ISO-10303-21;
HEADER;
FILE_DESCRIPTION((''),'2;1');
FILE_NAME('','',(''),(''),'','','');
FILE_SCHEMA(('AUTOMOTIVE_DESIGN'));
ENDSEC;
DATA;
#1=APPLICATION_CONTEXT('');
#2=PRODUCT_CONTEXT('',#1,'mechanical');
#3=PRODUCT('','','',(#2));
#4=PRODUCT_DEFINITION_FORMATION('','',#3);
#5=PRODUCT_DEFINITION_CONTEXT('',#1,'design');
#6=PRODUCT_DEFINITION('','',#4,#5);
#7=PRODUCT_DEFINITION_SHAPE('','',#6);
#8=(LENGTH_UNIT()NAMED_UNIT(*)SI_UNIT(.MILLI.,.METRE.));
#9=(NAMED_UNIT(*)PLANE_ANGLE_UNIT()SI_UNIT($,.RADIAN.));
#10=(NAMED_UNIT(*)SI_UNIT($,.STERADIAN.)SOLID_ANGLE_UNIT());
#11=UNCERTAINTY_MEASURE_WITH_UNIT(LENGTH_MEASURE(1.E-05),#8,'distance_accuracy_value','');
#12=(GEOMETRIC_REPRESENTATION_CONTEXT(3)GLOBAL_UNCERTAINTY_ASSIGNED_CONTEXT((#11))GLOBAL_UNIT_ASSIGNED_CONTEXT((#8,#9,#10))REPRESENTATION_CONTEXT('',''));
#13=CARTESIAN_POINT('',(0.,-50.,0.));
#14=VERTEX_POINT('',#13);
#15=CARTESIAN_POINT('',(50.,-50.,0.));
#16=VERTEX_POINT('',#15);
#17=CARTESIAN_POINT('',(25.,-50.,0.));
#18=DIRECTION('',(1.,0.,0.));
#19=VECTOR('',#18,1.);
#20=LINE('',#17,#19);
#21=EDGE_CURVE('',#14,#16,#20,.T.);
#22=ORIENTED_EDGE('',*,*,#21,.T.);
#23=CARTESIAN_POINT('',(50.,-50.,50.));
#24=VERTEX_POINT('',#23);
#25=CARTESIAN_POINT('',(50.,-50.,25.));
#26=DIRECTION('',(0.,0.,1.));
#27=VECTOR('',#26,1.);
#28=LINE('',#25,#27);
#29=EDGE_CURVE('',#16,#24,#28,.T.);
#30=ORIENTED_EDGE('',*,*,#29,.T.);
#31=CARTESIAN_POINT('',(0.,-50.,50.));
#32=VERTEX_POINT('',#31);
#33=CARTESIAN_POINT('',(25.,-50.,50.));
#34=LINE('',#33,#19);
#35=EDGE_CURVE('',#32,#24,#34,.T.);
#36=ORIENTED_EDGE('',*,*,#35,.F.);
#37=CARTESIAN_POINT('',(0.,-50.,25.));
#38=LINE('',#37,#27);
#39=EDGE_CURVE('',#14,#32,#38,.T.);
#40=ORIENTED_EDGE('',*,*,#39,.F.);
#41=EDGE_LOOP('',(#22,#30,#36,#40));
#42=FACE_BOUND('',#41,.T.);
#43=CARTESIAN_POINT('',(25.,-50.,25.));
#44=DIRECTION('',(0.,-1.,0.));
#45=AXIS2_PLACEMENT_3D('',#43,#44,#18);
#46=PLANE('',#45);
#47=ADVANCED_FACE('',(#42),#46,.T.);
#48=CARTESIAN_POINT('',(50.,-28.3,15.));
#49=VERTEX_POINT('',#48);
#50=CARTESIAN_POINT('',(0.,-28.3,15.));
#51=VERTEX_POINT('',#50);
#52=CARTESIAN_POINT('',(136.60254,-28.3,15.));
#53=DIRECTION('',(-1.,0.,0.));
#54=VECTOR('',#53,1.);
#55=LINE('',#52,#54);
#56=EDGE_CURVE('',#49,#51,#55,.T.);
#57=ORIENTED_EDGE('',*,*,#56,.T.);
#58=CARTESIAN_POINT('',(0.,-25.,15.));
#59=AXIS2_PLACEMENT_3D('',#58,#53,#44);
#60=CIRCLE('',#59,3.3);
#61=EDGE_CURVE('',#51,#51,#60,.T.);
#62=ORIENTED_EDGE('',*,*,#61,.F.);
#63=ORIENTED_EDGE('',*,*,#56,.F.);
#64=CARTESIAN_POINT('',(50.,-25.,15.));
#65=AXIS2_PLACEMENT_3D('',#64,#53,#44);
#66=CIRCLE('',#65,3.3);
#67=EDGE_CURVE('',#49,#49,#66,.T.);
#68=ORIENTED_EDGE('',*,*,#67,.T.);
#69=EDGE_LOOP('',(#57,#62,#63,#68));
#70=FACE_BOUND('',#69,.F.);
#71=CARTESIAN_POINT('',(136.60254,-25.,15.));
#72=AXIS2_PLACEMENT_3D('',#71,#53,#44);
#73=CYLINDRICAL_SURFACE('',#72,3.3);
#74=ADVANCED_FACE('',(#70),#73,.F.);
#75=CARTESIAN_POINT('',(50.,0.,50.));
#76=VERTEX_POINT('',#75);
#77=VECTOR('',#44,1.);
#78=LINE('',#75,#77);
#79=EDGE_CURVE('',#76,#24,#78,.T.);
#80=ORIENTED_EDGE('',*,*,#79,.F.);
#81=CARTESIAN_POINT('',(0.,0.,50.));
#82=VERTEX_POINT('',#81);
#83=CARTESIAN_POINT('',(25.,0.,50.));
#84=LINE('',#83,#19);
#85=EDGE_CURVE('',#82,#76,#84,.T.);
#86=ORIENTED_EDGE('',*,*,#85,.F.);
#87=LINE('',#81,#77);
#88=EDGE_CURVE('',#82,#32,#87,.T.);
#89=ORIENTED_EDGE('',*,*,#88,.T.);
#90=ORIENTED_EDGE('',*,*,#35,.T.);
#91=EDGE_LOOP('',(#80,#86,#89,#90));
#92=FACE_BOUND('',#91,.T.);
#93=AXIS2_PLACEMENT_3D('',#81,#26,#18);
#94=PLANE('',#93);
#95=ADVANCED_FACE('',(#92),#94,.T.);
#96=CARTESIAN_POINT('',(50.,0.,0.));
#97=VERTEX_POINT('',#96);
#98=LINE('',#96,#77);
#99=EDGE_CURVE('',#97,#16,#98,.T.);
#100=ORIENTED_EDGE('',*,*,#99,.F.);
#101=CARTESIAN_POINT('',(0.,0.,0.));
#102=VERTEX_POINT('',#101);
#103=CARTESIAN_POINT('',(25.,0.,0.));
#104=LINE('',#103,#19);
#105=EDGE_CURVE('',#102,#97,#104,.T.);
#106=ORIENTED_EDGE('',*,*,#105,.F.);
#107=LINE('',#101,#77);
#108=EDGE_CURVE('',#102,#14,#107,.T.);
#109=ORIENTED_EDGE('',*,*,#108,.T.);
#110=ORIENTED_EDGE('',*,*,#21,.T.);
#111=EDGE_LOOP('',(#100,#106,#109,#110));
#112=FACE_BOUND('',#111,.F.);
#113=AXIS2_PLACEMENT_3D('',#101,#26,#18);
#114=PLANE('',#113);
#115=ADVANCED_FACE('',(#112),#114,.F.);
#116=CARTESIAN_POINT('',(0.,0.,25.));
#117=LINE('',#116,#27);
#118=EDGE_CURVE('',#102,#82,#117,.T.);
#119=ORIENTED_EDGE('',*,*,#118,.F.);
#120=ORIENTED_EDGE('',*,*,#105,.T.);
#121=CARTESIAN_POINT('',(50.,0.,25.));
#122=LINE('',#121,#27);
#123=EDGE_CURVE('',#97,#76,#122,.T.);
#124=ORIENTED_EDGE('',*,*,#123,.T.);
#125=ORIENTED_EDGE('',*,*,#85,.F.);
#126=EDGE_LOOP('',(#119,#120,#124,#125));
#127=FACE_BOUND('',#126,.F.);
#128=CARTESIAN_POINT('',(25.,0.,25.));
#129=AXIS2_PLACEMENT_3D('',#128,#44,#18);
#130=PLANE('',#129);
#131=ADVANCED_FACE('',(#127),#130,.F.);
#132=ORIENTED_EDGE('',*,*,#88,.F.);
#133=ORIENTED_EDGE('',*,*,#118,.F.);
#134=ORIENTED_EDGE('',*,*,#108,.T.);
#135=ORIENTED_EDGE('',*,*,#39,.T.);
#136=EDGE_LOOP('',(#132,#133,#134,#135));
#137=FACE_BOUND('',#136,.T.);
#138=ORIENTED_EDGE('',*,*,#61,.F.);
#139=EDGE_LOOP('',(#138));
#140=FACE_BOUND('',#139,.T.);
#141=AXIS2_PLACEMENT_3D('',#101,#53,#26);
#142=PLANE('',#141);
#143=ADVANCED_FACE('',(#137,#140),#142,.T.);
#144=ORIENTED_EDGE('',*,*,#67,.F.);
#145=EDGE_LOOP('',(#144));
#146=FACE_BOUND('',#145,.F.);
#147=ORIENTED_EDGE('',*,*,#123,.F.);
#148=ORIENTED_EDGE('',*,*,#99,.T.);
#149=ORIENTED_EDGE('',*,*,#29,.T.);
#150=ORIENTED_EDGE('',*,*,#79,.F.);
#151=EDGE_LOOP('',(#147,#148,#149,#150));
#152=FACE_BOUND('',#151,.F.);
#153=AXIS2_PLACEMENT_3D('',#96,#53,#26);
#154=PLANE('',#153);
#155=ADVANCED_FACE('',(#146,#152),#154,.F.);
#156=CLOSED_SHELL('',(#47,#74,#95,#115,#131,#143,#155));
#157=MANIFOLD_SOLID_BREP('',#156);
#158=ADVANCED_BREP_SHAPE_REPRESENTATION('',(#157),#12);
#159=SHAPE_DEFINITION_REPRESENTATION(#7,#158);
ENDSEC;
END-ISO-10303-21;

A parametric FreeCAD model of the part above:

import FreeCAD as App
import Part
import Sketcher
from FreeCAD import Vector


def add_polygon(sketch, points):
    """Adds a closed chain of lines whose ends are joined by coincident constraints."""
    first, n = sketch.GeometryCount, len(points)
    for a, b in zip(points, points[1:] + points[:1]):
        sketch.addGeometry(Part.LineSegment(App.Vector(*a, 0), App.Vector(*b, 0)), False)
    for i in range(n):
        sketch.addConstraint(Sketcher.Constraint("Coincident", first + i, 2, first + (i + 1) % n, 1))

doc = App.newDocument("Part")
body = doc.addObject("PartDesign::Body", "Body")

sketch1 = body.newObject("Sketcher::SketchObject", "Sketch")
sketch1.AttachmentSupport = (doc.getObject("XZ_Plane"), [""])
sketch1.MapMode = "FlatFace"
add_polygon(sketch1, [(0, 50), (0, 0), (50, 0), (50, 50)])
sketch1.addConstraint([
    Sketcher.Constraint("Vertical", 0),
    Sketcher.Constraint("Horizontal", 1),
    Sketcher.Constraint("Vertical", 2),
    Sketcher.Constraint("Horizontal", 3),
    Sketcher.Constraint("Coincident", 0, 2, -1, 1),
    Sketcher.Constraint("Equal", 3, 0),
    Sketcher.Constraint("DistanceX", 1, 1, 1, 2, 50.0),
])
pad1 = body.newObject("PartDesign::Pad", "Pad")
pad1.Profile = sketch1
pad1.Length = 50

sketch2 = body.newObject("Sketcher::SketchObject", "Sketch001")
sketch2.AttachmentSupport = (doc.getObject("YZ_Plane"), [""])
sketch2.MapMode = "FlatFace"
sketch2.AttachmentOffset = App.Placement(Vector(0, 0, 50), App.Rotation())
sketch2.addGeometry(Part.Circle(Vector(-25, 15, 0), Vector(0, 0, 1), 3.3), False)
sketch2.addConstraint([
    Sketcher.Constraint("Diameter", 0, 6.6),
    Sketcher.Constraint("DistanceX", 0, 3, -1, 1, 25.0),
    Sketcher.Constraint("DistanceY", -1, 1, 0, 3, 15.0),
])
doc.recompute()
hole = body.newObject("PartDesign::Hole", "Hole")
hole.Profile = sketch2
hole.ThreadType = "None"
hole.Diameter = 6.6
hole.DepthType = "ThroughAll"

doc.recompute()
